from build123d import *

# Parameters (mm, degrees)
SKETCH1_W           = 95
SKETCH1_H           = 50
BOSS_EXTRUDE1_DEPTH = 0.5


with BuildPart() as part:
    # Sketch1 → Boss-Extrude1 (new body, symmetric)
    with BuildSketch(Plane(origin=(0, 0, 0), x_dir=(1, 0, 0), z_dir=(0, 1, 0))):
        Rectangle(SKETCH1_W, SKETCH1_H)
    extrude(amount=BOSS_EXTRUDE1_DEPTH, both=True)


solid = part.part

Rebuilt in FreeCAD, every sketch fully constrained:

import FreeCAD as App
import Part
import Sketcher


def add_polygon(sketch, points):
    """Adds a closed chain of lines whose ends are joined by coincident constraints."""
    first, n = sketch.GeometryCount, len(points)
    for a, b in zip(points, points[1:] + points[:1]):
        sketch.addGeometry(Part.LineSegment(App.Vector(*a, 0), App.Vector(*b, 0)), False)
    for i in range(n):
        sketch.addConstraint(Sketcher.Constraint("Coincident", first + i, 2, first + (i + 1) % n, 1))

doc = App.newDocument("Part")
params = doc.addObject("Spreadsheet::Sheet", "Params")
for row, (alias, value) in enumerate([
    ("sketch1_width", "95 mm"),
    ("sketch1_height", "50 mm"),
    ("pad1_length", "1 mm"),
], start=1):
    params.set(f"A{row}", alias)
    params.set(f"B{row}", "=" + value)
    params.setAlias(f"B{row}", alias)

body = doc.addObject("PartDesign::Body", "Body")

sketch1 = body.newObject("Sketcher::SketchObject", "Sketch")
sketch1.AttachmentSupport = (doc.getObject("XZ_Plane"), [""])
sketch1.MapMode = "FlatFace"
add_polygon(sketch1, [(-48, -25), (-48, 25), (48, 25), (48, -25)])
sketch1.addConstraint([
    Sketcher.Constraint("Vertical", 0),
    Sketcher.Constraint("Horizontal", 1),
    Sketcher.Constraint("Vertical", 2),
    Sketcher.Constraint("Horizontal", 3),
    Sketcher.Constraint("Symmetric", 0, 2, 2, 2, -1, 1),
    Sketcher.Constraint("DistanceX", 1, 1, 1, 2, 95.0),
    Sketcher.Constraint("DistanceY", 0, 1, 0, 2, 50.0),
])
sketch1.setExpression("Constraints[9]", "Params.sketch1_width")
sketch1.setExpression("Constraints[10]", "Params.sketch1_height")
pad1 = body.newObject("PartDesign::Pad", "Pad")
pad1.Profile = sketch1
pad1.setExpression("Length", "Params.pad1_length")
pad1.Midplane = True

doc.recompute()
